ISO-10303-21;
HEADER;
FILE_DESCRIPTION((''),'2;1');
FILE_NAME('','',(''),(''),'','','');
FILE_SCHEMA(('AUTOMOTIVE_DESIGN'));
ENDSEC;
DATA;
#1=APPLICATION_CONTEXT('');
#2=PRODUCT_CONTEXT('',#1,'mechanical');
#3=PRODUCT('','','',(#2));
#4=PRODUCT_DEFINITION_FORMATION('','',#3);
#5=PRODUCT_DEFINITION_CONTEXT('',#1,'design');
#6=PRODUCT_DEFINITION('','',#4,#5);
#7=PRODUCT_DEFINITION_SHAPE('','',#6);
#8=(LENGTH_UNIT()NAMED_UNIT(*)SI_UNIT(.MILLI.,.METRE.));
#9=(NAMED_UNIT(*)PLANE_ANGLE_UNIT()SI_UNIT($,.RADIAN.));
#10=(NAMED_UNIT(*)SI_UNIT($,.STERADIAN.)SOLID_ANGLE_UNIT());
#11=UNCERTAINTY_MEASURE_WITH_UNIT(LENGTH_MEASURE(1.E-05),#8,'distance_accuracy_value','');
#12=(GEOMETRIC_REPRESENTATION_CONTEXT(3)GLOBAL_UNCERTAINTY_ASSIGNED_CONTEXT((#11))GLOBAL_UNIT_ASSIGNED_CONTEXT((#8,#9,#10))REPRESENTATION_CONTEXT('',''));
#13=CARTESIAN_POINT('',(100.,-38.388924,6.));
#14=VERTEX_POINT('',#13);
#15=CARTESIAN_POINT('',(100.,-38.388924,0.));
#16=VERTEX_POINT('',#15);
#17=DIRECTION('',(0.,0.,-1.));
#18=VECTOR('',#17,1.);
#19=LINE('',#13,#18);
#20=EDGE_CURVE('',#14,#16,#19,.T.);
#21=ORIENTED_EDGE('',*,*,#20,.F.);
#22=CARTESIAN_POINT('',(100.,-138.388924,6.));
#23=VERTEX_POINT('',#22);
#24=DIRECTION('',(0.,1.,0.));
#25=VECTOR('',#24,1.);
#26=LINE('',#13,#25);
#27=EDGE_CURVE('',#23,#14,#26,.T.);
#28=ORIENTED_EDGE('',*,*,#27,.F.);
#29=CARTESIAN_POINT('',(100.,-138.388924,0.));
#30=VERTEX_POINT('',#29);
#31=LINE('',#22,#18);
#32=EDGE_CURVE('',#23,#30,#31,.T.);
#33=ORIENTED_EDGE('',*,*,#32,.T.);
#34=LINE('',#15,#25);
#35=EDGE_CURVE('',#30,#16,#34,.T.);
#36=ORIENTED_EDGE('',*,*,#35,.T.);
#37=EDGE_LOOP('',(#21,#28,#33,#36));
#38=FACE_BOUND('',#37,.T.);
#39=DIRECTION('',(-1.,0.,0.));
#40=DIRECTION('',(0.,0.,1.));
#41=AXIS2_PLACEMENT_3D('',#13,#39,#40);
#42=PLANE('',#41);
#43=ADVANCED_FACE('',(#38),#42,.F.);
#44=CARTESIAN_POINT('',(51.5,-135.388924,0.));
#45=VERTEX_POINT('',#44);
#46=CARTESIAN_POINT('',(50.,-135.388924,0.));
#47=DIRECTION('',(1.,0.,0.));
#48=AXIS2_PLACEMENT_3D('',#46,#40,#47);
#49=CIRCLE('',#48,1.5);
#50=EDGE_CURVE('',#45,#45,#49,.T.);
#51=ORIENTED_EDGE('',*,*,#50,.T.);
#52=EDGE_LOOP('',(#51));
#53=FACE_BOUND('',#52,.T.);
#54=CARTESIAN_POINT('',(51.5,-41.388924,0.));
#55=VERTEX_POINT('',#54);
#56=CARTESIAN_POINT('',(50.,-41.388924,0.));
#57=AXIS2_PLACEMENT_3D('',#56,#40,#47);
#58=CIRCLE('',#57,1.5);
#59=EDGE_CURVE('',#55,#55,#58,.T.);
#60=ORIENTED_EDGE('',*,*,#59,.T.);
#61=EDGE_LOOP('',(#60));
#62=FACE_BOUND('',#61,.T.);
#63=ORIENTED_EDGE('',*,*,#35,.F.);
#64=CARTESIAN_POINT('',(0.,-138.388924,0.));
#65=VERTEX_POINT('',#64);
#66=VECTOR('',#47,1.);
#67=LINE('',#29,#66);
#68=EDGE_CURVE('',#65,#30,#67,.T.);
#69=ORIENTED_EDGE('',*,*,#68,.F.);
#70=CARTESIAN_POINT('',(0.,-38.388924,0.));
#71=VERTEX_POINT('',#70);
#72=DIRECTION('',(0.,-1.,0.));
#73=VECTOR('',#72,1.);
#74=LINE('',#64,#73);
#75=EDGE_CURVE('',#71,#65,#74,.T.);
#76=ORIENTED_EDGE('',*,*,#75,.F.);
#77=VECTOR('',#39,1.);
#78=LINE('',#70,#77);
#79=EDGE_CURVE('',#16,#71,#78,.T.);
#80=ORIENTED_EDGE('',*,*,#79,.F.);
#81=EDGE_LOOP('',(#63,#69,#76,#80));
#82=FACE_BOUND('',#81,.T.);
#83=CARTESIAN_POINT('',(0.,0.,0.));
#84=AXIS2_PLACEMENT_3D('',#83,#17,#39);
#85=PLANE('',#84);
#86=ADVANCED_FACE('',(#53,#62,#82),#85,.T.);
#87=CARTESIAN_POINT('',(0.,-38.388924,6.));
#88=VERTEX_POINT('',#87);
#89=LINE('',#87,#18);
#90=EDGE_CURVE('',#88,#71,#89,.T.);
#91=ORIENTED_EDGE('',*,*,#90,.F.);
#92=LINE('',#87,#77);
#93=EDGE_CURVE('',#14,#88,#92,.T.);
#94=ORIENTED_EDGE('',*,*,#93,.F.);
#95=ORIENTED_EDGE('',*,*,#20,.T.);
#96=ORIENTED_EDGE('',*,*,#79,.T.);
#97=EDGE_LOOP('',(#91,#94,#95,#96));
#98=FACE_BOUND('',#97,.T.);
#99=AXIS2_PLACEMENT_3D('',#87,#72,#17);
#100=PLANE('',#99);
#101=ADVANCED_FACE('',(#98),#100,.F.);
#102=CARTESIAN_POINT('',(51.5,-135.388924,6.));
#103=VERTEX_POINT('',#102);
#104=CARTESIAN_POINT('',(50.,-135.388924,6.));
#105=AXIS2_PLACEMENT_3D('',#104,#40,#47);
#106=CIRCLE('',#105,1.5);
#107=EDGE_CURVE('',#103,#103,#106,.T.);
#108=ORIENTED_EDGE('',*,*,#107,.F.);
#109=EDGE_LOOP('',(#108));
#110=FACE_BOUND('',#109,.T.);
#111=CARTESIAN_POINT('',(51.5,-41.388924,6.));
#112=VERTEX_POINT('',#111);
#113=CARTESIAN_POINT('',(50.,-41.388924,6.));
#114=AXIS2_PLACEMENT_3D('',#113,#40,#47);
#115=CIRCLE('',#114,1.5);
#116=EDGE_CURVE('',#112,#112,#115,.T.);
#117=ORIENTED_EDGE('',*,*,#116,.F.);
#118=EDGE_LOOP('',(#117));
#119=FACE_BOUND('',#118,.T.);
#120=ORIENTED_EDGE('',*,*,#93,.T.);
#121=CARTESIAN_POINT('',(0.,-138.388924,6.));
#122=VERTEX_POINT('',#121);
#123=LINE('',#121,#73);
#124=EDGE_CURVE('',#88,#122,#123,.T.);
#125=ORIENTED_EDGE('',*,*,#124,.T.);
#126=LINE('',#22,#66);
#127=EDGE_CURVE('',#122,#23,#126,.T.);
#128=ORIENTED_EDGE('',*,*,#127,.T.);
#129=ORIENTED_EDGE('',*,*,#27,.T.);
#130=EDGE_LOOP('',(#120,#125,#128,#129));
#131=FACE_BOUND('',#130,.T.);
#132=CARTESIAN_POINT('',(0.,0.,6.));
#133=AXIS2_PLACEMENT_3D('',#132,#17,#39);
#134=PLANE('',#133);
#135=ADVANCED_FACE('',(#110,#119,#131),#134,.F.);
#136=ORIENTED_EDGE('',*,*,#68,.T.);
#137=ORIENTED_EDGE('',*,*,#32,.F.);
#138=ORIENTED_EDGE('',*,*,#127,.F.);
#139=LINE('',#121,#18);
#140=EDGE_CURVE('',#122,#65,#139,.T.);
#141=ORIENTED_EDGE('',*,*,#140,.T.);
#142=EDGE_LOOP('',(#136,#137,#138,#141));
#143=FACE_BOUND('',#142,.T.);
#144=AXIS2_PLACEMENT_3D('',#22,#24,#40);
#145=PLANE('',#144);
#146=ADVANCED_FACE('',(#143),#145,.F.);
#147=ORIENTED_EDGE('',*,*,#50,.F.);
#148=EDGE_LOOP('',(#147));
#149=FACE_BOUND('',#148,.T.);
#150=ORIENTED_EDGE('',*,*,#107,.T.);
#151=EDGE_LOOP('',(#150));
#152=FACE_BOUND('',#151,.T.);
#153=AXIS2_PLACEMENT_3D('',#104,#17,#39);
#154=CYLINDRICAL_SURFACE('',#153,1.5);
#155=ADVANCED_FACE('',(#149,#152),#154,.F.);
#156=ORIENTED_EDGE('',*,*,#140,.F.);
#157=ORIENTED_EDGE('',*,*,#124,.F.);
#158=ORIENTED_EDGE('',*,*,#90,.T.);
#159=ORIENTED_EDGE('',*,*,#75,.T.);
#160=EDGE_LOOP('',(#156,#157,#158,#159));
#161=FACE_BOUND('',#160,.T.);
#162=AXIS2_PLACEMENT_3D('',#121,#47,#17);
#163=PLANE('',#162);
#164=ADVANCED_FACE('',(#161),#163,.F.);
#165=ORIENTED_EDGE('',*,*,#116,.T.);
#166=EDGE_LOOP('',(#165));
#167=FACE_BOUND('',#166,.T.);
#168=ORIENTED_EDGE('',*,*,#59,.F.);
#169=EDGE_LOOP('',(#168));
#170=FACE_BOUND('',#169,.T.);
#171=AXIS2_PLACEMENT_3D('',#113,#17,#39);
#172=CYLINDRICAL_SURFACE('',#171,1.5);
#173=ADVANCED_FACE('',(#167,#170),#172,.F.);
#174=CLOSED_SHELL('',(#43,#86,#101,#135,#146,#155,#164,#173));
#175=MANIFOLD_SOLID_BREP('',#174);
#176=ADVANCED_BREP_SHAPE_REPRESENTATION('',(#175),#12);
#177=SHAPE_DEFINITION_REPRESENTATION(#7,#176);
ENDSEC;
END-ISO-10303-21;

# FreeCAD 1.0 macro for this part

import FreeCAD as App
import Part
import Sketcher

V = App.Vector
Q = App.Units.Quantity


def add_polygon(sketch, points):
    """Adds a closed chain of lines whose ends are joined by coincident constraints."""
    first, n = sketch.GeometryCount, len(points)
    for a, b in zip(points, points[1:] + points[:1]):
        sketch.addGeometry(Part.LineSegment(App.Vector(*a, 0), App.Vector(*b, 0)), False)
    for i in range(n):
        sketch.addConstraint(Sketcher.Constraint("Coincident", first + i, 2, first + (i + 1) % n, 1))

doc = App.newDocument("Part")
body = doc.addObject("PartDesign::Body", "Body")

# Sketch on XY plane
sketch1 = body.newObject("Sketcher::SketchObject", "Sketch")
sketch1.AttachmentSupport = (doc.getObject("XY_Plane"), [""])
sketch1.MapMode = "FlatFace"
add_polygon(sketch1, [(0, -38.4), (0, -138.4), (100, -138.4), (100, -38.4)])  # lines 0-3
sketch1.addGeometry(Part.Circle(V(50, -135.4, 0), V(0, 0, 1), 1.5), False)  # 4
sketch1.addGeometry(Part.Circle(V(50, -41.4, 0), V(0, 0, 1), 1.5), False)  # 5
sketch1.addConstraint([
    Sketcher.Constraint("Vertical", 0),
    Sketcher.Constraint("Horizontal", 1),
    Sketcher.Constraint("Vertical", 2),
    Sketcher.Constraint("Horizontal", 3),
    Sketcher.Constraint("Equal", 4, 5),
    Sketcher.Constraint("PointOnObject", 0, 2, -2),
    Sketcher.Constraint("Vertical", 4, 3, 5, 3),
    Sketcher.Constraint("Equal", 3, 0),
    Sketcher.Constraint("Diameter", 4, Q("3 mm")),
    Sketcher.Constraint("DistanceX", 1, 1, 1, 2, Q("100 mm")),
    Sketcher.Constraint("DistanceX", -1, 1, 4, 3, Q("50 mm")),
    Sketcher.Constraint("DistanceY", 4, 3, 5, 3, Q("94 mm")),
    Sketcher.Constraint("DistanceY", 0, 2, 4, 3, Q("3 mm")),
    Sketcher.Constraint("DistanceY", 4, 3, -1, 1, Q("135.388924 mm")),
])
pad1 = body.newObject("PartDesign::Pad", "Pad")
pad1.Profile = sketch1
pad1.Length = 6

doc.recompute()
